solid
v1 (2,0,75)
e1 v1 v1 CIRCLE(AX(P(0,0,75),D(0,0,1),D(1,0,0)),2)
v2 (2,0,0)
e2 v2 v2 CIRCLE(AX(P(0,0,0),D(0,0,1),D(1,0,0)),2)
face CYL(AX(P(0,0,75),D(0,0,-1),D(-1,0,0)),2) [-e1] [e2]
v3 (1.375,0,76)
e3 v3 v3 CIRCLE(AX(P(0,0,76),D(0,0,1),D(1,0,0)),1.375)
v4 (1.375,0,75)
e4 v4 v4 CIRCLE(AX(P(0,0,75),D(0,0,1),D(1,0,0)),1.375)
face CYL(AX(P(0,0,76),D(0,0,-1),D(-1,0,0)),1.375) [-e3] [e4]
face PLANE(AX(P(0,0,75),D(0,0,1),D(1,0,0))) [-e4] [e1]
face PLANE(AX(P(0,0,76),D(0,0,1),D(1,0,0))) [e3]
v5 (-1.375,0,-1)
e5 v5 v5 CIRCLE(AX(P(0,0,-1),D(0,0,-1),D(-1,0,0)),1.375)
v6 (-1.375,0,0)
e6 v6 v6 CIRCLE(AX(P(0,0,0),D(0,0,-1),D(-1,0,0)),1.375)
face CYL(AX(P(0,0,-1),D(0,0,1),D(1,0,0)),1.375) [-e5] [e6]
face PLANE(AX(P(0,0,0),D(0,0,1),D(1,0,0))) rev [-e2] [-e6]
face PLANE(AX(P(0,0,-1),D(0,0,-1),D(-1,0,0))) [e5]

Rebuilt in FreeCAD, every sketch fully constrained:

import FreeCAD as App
import Part
import Sketcher

V = App.Vector

doc = App.newDocument("Part")
params = doc.addObject("Spreadsheet::Sheet", "Params")
for row, (alias, value) in enumerate([
    ("sketch1_diameter", "4 mm"),
    ("pad1_length", "75 mm"),
    ("sketch2_diameter", "2.75 mm"),
    ("pad2_length", "1 mm"),
    ("sketch3_diameter", "2.75 mm"),
    ("pad3_length", "1 mm"),
], start=1):
    params.set(f"A{row}", alias)
    params.set(f"B{row}", "=" + value)
    params.setAlias(f"B{row}", alias)

body = doc.addObject("PartDesign::Body", "Body")

# Sketch on XY plane
sketch1 = body.newObject("Sketcher::SketchObject", "Sketch")
sketch1.AttachmentSupport = (doc.getObject("XY_Plane"), [""])
sketch1.MapMode = "FlatFace"
sketch1.addGeometry(Part.Circle(V(0, 0, 0), V(0, 0, 1), 2), False)
sketch1.addConstraint([
    Sketcher.Constraint("Coincident", 0, 3, -1, 1),
    Sketcher.Constraint("Diameter", 0, 4.0),
])
sketch1.setExpression("Constraints[1]", "Params.sketch1_diameter")
pad1 = body.newObject("PartDesign::Pad", "Pad")
pad1.Profile = sketch1
pad1.setExpression("Length", "Params.pad1_length")

# Sketch on XY plane
sketch2 = body.newObject("Sketcher::SketchObject", "Sketch001")
sketch2.AttachmentSupport = (doc.getObject("XY_Plane"), [""])
sketch2.MapMode = "FlatFace"
sketch2.AttachmentOffset = App.Placement(V(0, 0, 75), App.Rotation())
sketch2.addGeometry(Part.Circle(V(0, 0, 0), V(0, 0, 1), 1.4), False)
sketch2.addConstraint([
    Sketcher.Constraint("Coincident", 0, 3, -1, 1),
    Sketcher.Constraint("Diameter", 0, 2.75),
])
sketch2.setExpression("Constraints[1]", "Params.sketch2_diameter")
pad2 = body.newObject("PartDesign::Pad", "Pad001")
pad2.Profile = sketch2
pad2.setExpression("Length", "Params.pad2_length")

# Sketch on XY plane
sketch3 = body.newObject("Sketcher::SketchObject", "Sketch002")
sketch3.AttachmentSupport = (doc.getObject("XY_Plane"), [""])
sketch3.MapMode = "FlatFace"
sketch3.AttachmentOffset = App.Placement(V(0, 0, -1), App.Rotation())
sketch3.addGeometry(Part.Circle(V(0, 0, 0), V(0, 0, 1), 1.4), False)
sketch3.addConstraint([
    Sketcher.Constraint("Coincident", 0, 3, -1, 1),
    Sketcher.Constraint("Diameter", 0, 2.75),
])
sketch3.setExpression("Constraints[1]", "Params.sketch3_diameter")
pad3 = body.newObject("PartDesign::Pad", "Pad002")
pad3.Profile = sketch3
pad3.setExpression("Length", "Params.pad3_length")

doc.recompute()
